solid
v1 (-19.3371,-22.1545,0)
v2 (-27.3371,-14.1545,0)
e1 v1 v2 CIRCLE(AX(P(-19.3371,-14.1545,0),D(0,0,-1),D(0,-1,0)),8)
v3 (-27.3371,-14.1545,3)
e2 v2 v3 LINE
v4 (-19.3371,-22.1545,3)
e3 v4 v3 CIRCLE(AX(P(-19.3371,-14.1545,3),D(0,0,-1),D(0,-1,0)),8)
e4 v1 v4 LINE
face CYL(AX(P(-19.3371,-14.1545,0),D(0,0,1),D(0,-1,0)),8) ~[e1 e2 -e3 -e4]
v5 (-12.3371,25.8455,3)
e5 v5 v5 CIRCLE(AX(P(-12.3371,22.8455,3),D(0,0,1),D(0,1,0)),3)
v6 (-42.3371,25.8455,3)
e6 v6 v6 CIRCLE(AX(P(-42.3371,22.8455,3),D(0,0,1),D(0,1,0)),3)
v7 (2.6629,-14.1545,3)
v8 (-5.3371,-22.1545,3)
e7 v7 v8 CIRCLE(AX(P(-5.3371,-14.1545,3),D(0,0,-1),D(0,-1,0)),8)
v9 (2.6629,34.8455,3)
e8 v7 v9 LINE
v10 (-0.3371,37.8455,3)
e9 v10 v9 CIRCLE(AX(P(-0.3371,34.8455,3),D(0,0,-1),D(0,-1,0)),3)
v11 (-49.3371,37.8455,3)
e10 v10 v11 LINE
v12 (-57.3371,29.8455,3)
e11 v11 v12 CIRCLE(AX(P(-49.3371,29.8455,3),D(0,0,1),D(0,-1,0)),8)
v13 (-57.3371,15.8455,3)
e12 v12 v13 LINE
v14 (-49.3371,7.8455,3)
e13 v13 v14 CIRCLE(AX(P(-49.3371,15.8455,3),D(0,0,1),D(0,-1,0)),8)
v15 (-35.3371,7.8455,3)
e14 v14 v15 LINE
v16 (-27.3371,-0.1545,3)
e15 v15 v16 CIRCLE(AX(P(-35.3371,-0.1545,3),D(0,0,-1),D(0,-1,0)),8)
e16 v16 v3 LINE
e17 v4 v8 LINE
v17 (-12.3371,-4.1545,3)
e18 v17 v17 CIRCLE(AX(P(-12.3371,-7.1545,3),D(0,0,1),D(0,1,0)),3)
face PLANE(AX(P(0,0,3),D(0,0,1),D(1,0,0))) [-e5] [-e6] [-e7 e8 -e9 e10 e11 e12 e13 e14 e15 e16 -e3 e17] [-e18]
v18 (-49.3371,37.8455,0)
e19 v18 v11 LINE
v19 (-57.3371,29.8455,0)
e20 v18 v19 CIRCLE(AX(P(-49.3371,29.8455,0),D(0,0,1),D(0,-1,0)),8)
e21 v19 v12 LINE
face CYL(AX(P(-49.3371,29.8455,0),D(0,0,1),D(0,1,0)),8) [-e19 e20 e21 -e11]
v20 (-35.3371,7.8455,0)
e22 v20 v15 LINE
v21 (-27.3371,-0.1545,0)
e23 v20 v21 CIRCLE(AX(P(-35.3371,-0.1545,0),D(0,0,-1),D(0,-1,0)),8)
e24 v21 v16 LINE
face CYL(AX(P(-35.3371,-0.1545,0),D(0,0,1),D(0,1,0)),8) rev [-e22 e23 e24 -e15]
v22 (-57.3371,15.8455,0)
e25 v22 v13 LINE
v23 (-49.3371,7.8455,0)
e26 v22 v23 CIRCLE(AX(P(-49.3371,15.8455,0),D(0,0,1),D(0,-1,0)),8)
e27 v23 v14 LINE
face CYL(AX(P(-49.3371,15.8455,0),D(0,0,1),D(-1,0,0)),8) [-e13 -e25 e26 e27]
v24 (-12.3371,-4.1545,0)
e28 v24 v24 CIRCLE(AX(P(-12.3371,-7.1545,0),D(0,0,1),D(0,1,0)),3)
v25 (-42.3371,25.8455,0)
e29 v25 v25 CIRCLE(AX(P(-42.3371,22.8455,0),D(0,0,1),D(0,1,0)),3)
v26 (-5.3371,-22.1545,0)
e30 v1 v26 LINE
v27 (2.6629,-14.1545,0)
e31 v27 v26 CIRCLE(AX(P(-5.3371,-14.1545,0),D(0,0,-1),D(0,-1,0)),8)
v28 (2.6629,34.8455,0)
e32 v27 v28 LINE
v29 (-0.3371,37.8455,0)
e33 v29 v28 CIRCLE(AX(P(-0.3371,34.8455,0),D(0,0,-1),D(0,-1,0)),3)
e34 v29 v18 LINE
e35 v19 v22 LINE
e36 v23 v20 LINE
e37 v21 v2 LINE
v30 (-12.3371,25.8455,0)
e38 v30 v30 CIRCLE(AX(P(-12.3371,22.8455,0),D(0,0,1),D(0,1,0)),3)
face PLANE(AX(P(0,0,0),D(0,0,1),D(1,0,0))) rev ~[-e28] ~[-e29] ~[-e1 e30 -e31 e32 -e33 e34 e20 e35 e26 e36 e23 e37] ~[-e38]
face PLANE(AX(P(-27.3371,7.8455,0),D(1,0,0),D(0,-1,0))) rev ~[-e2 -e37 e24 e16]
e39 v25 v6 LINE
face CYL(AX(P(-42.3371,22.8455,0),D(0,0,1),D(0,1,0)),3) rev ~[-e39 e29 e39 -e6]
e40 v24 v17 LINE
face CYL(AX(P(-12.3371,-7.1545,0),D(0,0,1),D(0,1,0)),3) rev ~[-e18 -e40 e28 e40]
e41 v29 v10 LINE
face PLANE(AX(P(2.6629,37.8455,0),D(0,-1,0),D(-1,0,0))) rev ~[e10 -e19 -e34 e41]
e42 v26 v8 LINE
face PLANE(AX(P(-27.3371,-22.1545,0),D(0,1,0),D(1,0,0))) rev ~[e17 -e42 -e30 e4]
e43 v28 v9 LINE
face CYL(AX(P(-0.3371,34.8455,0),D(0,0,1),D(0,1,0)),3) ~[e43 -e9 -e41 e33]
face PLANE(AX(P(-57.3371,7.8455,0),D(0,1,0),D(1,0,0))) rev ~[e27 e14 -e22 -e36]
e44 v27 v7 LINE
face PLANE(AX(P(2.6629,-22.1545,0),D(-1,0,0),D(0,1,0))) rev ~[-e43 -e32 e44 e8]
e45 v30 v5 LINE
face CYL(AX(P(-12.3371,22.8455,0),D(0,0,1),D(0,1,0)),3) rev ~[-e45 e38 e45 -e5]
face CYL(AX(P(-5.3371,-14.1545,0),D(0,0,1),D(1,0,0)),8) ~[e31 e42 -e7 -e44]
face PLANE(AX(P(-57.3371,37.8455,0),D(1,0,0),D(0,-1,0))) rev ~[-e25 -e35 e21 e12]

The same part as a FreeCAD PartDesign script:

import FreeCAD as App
import Part
import Sketcher
from FreeCAD import Vector


def edges_at(feature, points):
    """Names of the edges that pass closest to the given points."""
    edges = feature.Shape.Edges
    near = lambda p: min(range(len(edges)), key=lambda i: edges[i].distToShape(Part.Vertex(*p))[0])
    return sorted({f"Edge{near(p) + 1}" for p in points})

doc = App.newDocument("Part")
body = doc.addObject("PartDesign::Body", "Body")

sketch1 = body.newObject("Sketcher::SketchObject", "Sketch")
sketch1.AttachmentSupport = (doc.getObject("XY_Plane"), [""])
sketch1.MapMode = "FlatFace"
sketch1.addGeometry(Part.LineSegment(Vector(3, 38, 0), Vector(-57, 38, 0)), False)
sketch1.addGeometry(Part.LineSegment(Vector(-57, 38, 0), Vector(-57, 8, 0)), False)
sketch1.addGeometry(Part.LineSegment(Vector(-57, 8, 0), Vector(-27, 8, 0)), False)
sketch1.addGeometry(Part.LineSegment(Vector(-27, 8, 0), Vector(-27, -22, 0)), False)
sketch1.addGeometry(Part.LineSegment(Vector(-27, -22, 0), Vector(3, -22, 0)), False)
sketch1.addGeometry(Part.LineSegment(Vector(3, -22, 0), Vector(3, 38, 0)), False)
sketch1.addConstraint(Sketcher.Constraint("Coincident", 0, 2, 1, 1))
sketch1.addConstraint(Sketcher.Constraint("Coincident", 1, 2, 2, 1))
sketch1.addConstraint(Sketcher.Constraint("Coincident", 2, 2, 3, 1))
sketch1.addConstraint(Sketcher.Constraint("Coincident", 3, 2, 4, 1))
sketch1.addConstraint(Sketcher.Constraint("Coincident", 4, 2, 5, 1))
sketch1.addConstraint(Sketcher.Constraint("Coincident", 5, 2, 0, 1))
sketch1.addConstraint(Sketcher.Constraint("Horizontal", 0))
sketch1.addConstraint(Sketcher.Constraint("Vertical", 1))
sketch1.addConstraint(Sketcher.Constraint("Horizontal", 2))
sketch1.addConstraint(Sketcher.Constraint("Vertical", 3))
sketch1.addConstraint(Sketcher.Constraint("Horizontal", 4))
sketch1.addConstraint(Sketcher.Constraint("Vertical", 5))
sketch1.addConstraint(Sketcher.Constraint("Equal", 2, 4))
sketch1.addConstraint(Sketcher.Constraint("Equal", 4, 1))
sketch1.addConstraint(Sketcher.Constraint("Equal", 1, 3))
sketch1.addConstraint(Sketcher.Constraint("DistanceX", 2, 1, 2, 2, 30.0))
sketch1.addConstraint(Sketcher.Constraint("DistanceX", 0, 2, -1, 1, 57.337))
sketch1.addConstraint(Sketcher.Constraint("DistanceY", -1, 1, 0, 2, 37.8455))
pad1 = body.newObject("PartDesign::Pad", "Pad")
pad1.Profile = sketch1
pad1.Length = 3

sketch2 = body.newObject("Sketcher::SketchObject", "Sketch001")
sketch2.AttachmentSupport = (doc.getObject("XY_Plane"), [""])
sketch2.MapMode = "FlatFace"
sketch2.addGeometry(Part.Circle(Vector(-42.3, 22.8, 0), Vector(0, 0, 1), 3), False)
sketch2.addGeometry(Part.Circle(Vector(-12.3, 22.8, 0), Vector(0, 0, 1), 3), False)
sketch2.addGeometry(Part.Circle(Vector(-12.3, -7.2, 0), Vector(0, 0, 1), 3), False)
sketch2.addConstraint(Sketcher.Constraint("Equal", 0, 1))
sketch2.addConstraint(Sketcher.Constraint("Equal", 1, 2))
sketch2.addConstraint(Sketcher.Constraint("Horizontal", 0, 3, 1, 3))
sketch2.addConstraint(Sketcher.Constraint("Vertical", 1, 3, 2, 3))
sketch2.addConstraint(Sketcher.Constraint("Diameter", 0, 6.0))
sketch2.addConstraint(Sketcher.Constraint("DistanceX", 0, 3, 1, 3, 30.0))
sketch2.addConstraint(Sketcher.Constraint("DistanceY", 2, 3, 1, 3, 30.0))
sketch2.addConstraint(Sketcher.Constraint("DistanceX", 0, 3, -1, 1, 42.337))
sketch2.addConstraint(Sketcher.Constraint("DistanceY", -1, 1, 0, 3, 22.8455))
doc.recompute()
hole = body.newObject("PartDesign::Hole", "Hole")
hole.Profile = sketch2
hole.ThreadType = "None"
hole.Diameter = 6
hole.DepthType = "ThroughAll"
hole.Reversed = True
doc.recompute()

fillet = body.newObject("PartDesign::Fillet", "Fillet")
fillet.Base = (hole, edges_at(hole, [(2.663, 37.846, 1.5)]))
fillet.Radius = 3
doc.recompute()

fillet2 = body.newObject("PartDesign::Fillet", "Fillet001")
fillet2.Base = (fillet, edges_at(fillet, [
    (2.663, -22.154, 1.5),
    (-27.337, -22.154, 1.5),
    (-27.337, 7.846, 1.5),
    (-57.337, 7.846, 1.5),
    (-57.337, 37.846, 1.5),
]))
fillet2.Radius = 8

doc.recompute()
